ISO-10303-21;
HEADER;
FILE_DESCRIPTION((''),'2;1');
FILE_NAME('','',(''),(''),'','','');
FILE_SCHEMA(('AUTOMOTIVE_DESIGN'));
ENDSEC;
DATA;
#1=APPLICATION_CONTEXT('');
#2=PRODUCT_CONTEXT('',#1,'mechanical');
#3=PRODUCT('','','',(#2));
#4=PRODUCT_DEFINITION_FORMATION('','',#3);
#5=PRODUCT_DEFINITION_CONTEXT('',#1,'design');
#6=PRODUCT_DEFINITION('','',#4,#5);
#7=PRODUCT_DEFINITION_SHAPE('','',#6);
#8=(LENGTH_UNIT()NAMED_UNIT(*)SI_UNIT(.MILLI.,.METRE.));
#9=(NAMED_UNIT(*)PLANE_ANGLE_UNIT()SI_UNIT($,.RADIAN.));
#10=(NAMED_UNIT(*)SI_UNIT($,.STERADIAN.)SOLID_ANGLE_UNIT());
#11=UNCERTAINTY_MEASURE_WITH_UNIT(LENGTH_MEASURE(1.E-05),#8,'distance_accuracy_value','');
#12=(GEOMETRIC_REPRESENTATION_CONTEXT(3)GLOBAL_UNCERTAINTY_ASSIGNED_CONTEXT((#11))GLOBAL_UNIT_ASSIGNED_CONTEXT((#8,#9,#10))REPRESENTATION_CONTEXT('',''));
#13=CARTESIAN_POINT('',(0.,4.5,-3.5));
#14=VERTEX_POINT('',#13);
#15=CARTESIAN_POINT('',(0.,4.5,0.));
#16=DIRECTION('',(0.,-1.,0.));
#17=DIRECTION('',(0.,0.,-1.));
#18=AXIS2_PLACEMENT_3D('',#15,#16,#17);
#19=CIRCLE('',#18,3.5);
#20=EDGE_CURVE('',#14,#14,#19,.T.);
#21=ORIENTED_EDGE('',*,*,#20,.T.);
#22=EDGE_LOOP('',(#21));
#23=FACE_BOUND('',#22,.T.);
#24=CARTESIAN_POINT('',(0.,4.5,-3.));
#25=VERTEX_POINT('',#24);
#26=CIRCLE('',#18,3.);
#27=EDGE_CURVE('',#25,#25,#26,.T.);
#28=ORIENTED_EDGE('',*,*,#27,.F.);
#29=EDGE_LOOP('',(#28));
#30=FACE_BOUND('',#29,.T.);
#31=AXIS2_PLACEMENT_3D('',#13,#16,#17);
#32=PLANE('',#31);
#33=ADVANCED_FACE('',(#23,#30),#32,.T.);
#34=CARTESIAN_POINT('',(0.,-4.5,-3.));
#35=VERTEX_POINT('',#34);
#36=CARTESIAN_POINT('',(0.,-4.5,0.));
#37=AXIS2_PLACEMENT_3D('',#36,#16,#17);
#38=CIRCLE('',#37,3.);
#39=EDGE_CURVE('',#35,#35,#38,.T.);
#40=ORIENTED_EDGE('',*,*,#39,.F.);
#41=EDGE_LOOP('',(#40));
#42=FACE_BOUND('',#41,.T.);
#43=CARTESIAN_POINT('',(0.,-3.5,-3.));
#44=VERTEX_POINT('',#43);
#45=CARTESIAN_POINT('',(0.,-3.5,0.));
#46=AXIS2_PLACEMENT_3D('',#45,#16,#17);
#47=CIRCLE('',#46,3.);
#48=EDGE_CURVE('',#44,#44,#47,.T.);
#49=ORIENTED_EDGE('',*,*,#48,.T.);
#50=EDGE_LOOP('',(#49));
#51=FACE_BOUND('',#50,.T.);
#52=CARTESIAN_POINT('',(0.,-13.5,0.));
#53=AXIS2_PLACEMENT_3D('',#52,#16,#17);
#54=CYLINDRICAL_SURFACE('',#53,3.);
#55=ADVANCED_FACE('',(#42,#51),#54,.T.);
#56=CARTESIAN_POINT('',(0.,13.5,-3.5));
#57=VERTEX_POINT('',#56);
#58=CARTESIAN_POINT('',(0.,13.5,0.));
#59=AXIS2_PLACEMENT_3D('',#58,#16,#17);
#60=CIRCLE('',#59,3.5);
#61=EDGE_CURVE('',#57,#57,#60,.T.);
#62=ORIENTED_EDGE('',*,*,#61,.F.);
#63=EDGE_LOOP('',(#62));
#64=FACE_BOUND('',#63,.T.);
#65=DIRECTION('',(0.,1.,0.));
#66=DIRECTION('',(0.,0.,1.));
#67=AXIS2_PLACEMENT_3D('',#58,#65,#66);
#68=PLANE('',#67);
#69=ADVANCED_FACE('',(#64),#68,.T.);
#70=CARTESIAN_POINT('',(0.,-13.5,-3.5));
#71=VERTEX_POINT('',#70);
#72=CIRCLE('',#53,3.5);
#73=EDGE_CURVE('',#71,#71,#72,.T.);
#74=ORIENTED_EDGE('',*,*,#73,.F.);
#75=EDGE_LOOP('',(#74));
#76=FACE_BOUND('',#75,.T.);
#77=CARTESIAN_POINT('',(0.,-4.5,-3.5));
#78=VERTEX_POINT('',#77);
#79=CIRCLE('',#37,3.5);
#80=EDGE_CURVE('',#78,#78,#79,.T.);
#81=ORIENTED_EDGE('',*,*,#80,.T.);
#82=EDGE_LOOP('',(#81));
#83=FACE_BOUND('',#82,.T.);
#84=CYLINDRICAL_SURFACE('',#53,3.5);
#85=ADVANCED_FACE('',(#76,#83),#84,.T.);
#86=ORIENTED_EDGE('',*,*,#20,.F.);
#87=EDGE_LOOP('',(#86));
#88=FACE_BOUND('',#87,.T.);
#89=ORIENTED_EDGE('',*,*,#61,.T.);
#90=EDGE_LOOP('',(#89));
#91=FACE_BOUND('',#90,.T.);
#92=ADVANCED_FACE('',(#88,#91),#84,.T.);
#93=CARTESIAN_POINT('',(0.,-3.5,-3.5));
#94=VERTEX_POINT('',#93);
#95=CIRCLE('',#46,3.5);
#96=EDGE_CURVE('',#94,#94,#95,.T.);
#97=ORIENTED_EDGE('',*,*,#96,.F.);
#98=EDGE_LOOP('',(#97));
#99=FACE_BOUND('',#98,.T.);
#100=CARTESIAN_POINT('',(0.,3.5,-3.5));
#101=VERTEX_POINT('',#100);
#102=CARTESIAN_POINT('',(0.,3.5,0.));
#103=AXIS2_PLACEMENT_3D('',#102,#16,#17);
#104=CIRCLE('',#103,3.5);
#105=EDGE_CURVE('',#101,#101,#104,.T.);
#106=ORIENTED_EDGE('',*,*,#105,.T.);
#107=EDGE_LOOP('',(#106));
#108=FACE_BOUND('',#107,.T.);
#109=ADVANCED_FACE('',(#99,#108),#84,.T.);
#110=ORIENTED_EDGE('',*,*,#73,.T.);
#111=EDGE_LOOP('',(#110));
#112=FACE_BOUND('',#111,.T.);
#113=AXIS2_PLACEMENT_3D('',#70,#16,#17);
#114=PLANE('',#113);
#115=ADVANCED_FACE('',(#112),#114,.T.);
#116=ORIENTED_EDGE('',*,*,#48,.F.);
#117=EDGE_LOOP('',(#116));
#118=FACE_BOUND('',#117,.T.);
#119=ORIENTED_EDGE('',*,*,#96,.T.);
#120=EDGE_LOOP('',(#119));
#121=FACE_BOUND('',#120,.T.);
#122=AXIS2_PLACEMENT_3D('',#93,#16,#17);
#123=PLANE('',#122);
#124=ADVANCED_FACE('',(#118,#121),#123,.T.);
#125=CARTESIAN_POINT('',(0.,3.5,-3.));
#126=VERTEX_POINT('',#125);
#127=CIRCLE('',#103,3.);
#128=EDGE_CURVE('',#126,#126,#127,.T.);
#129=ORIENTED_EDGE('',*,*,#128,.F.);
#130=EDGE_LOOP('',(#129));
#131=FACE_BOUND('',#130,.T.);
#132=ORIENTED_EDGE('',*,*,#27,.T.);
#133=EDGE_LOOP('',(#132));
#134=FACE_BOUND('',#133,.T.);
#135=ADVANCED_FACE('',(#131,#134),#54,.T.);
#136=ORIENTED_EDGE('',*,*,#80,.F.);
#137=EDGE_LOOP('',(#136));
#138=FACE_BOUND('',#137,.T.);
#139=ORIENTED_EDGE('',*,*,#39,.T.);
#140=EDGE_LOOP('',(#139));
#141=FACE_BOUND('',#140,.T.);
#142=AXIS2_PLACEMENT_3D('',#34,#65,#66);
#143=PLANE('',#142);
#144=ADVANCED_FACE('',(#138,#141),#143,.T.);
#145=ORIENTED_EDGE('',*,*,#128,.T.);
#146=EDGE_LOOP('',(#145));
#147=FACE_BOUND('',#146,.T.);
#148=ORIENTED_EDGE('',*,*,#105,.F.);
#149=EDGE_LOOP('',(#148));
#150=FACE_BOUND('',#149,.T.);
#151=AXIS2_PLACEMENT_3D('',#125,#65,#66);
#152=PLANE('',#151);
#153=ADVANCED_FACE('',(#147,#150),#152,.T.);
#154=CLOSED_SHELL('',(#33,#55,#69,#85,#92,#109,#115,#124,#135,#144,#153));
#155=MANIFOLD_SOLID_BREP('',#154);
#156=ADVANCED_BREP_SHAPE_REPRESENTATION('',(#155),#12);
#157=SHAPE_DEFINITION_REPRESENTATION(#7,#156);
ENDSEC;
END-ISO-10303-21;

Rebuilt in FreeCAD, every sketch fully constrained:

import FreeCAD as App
import Part
import Sketcher

doc = App.newDocument("Part")
body = doc.addObject("PartDesign::Body", "Body")

# Sketch on YZ plane
sketch1 = body.newObject("Sketcher::SketchObject", "Sketch")
sketch1.AttachmentSupport = (doc.getObject("YZ_Plane"), [""])
sketch1.MapMode = "FlatFace"
sketch1.addGeometry(Part.LineSegment(App.Vector(13.5, -3.5, 0), App.Vector(13.5, 0, 0)), False)
sketch1.addGeometry(Part.LineSegment(App.Vector(13.5, 0, 0), App.Vector(-13.5, 0, 0)), False)
sketch1.addGeometry(Part.LineSegment(App.Vector(-13.5, 0, 0), App.Vector(-13.5, -3.5, 0)), False)
sketch1.addGeometry(Part.LineSegment(App.Vector(-13.5, -3.5, 0), App.Vector(-4.5, -3.5, 0)), False)
sketch1.addGeometry(Part.LineSegment(App.Vector(-4.5, -3.5, 0), App.Vector(-4.5, -3, 0)), False)
sketch1.addGeometry(Part.LineSegment(App.Vector(-4.5, -3, 0), App.Vector(-3.5, -3, 0)), False)
sketch1.addGeometry(Part.LineSegment(App.Vector(-3.5, -3, 0), App.Vector(-3.5, -3.5, 0)), False)
sketch1.addGeometry(Part.LineSegment(App.Vector(-3.5, -3.5, 0), App.Vector(3.5, -3.5, 0)), False)
sketch1.addGeometry(Part.LineSegment(App.Vector(3.5, -3.5, 0), App.Vector(3.5, -3, 0)), False)
sketch1.addGeometry(Part.LineSegment(App.Vector(3.5, -3, 0), App.Vector(4.5, -3, 0)), False)
sketch1.addGeometry(Part.LineSegment(App.Vector(4.5, -3, 0), App.Vector(4.5, -3.5, 0)), False)
sketch1.addGeometry(Part.LineSegment(App.Vector(4.5, -3.5, 0), App.Vector(13.5, -3.5, 0)), False)
sketch1.addConstraint(Sketcher.Constraint("Coincident", 0, 2, 1, 1))
sketch1.addConstraint(Sketcher.Constraint("Coincident", 1, 2, 2, 1))
sketch1.addConstraint(Sketcher.Constraint("Coincident", 2, 2, 3, 1))
sketch1.addConstraint(Sketcher.Constraint("Coincident", 3, 2, 4, 1))
sketch1.addConstraint(Sketcher.Constraint("Coincident", 4, 2, 5, 1))
sketch1.addConstraint(Sketcher.Constraint("Coincident", 5, 2, 6, 1))
sketch1.addConstraint(Sketcher.Constraint("Coincident", 6, 2, 7, 1))
sketch1.addConstraint(Sketcher.Constraint("Coincident", 7, 2, 8, 1))
sketch1.addConstraint(Sketcher.Constraint("Coincident", 8, 2, 9, 1))
sketch1.addConstraint(Sketcher.Constraint("Coincident", 9, 2, 10, 1))
sketch1.addConstraint(Sketcher.Constraint("Coincident", 10, 2, 11, 1))
sketch1.addConstraint(Sketcher.Constraint("Coincident", 11, 2, 0, 1))
sketch1.addConstraint(Sketcher.Constraint("Vertical", 0))
sketch1.addConstraint(Sketcher.Constraint("Horizontal", 1))
sketch1.addConstraint(Sketcher.Constraint("Vertical", 2))
sketch1.addConstraint(Sketcher.Constraint("Horizontal", 3))
sketch1.addConstraint(Sketcher.Constraint("Vertical", 4))
sketch1.addConstraint(Sketcher.Constraint("Horizontal", 5))
sketch1.addConstraint(Sketcher.Constraint("Vertical", 6))
sketch1.addConstraint(Sketcher.Constraint("Horizontal", 7))
sketch1.addConstraint(Sketcher.Constraint("Vertical", 8))
sketch1.addConstraint(Sketcher.Constraint("Horizontal", 9))
sketch1.addConstraint(Sketcher.Constraint("Vertical", 10))
sketch1.addConstraint(Sketcher.Constraint("Horizontal", 11))
sketch1.addConstraint(Sketcher.Constraint("Symmetric", 0, 2, 1, 2, -1, 1))
sketch1.addConstraint(Sketcher.Constraint("Symmetric", 5, 2, 8, 2, -2))
sketch1.addConstraint(Sketcher.Constraint("Symmetric", 3, 2, 10, 2, -2))
sketch1.addConstraint(Sketcher.Constraint("Horizontal", 3, 2, 6, 2))
sketch1.addConstraint(Sketcher.Constraint("DistanceX", 1, 2, 1, 1, 27.0))
sketch1.addConstraint(Sketcher.Constraint("DistanceX", 3, 1, 3, 2, 9.0))
sketch1.addConstraint(Sketcher.Constraint("DistanceX", 5, 1, 5, 2, 1.0))
sketch1.addConstraint(Sketcher.Constraint("DistanceY", 0, 1, 0, 2, 3.5))
sketch1.addConstraint(Sketcher.Constraint("DistanceY", 4, 1, 4, 2, 0.5))
revolution = body.newObject("PartDesign::Revolution", "Revolution")
revolution.Profile = sketch1
revolution.ReferenceAxis = (sketch1, ["H_Axis"])
revolution.Angle = 360

doc.recompute()
